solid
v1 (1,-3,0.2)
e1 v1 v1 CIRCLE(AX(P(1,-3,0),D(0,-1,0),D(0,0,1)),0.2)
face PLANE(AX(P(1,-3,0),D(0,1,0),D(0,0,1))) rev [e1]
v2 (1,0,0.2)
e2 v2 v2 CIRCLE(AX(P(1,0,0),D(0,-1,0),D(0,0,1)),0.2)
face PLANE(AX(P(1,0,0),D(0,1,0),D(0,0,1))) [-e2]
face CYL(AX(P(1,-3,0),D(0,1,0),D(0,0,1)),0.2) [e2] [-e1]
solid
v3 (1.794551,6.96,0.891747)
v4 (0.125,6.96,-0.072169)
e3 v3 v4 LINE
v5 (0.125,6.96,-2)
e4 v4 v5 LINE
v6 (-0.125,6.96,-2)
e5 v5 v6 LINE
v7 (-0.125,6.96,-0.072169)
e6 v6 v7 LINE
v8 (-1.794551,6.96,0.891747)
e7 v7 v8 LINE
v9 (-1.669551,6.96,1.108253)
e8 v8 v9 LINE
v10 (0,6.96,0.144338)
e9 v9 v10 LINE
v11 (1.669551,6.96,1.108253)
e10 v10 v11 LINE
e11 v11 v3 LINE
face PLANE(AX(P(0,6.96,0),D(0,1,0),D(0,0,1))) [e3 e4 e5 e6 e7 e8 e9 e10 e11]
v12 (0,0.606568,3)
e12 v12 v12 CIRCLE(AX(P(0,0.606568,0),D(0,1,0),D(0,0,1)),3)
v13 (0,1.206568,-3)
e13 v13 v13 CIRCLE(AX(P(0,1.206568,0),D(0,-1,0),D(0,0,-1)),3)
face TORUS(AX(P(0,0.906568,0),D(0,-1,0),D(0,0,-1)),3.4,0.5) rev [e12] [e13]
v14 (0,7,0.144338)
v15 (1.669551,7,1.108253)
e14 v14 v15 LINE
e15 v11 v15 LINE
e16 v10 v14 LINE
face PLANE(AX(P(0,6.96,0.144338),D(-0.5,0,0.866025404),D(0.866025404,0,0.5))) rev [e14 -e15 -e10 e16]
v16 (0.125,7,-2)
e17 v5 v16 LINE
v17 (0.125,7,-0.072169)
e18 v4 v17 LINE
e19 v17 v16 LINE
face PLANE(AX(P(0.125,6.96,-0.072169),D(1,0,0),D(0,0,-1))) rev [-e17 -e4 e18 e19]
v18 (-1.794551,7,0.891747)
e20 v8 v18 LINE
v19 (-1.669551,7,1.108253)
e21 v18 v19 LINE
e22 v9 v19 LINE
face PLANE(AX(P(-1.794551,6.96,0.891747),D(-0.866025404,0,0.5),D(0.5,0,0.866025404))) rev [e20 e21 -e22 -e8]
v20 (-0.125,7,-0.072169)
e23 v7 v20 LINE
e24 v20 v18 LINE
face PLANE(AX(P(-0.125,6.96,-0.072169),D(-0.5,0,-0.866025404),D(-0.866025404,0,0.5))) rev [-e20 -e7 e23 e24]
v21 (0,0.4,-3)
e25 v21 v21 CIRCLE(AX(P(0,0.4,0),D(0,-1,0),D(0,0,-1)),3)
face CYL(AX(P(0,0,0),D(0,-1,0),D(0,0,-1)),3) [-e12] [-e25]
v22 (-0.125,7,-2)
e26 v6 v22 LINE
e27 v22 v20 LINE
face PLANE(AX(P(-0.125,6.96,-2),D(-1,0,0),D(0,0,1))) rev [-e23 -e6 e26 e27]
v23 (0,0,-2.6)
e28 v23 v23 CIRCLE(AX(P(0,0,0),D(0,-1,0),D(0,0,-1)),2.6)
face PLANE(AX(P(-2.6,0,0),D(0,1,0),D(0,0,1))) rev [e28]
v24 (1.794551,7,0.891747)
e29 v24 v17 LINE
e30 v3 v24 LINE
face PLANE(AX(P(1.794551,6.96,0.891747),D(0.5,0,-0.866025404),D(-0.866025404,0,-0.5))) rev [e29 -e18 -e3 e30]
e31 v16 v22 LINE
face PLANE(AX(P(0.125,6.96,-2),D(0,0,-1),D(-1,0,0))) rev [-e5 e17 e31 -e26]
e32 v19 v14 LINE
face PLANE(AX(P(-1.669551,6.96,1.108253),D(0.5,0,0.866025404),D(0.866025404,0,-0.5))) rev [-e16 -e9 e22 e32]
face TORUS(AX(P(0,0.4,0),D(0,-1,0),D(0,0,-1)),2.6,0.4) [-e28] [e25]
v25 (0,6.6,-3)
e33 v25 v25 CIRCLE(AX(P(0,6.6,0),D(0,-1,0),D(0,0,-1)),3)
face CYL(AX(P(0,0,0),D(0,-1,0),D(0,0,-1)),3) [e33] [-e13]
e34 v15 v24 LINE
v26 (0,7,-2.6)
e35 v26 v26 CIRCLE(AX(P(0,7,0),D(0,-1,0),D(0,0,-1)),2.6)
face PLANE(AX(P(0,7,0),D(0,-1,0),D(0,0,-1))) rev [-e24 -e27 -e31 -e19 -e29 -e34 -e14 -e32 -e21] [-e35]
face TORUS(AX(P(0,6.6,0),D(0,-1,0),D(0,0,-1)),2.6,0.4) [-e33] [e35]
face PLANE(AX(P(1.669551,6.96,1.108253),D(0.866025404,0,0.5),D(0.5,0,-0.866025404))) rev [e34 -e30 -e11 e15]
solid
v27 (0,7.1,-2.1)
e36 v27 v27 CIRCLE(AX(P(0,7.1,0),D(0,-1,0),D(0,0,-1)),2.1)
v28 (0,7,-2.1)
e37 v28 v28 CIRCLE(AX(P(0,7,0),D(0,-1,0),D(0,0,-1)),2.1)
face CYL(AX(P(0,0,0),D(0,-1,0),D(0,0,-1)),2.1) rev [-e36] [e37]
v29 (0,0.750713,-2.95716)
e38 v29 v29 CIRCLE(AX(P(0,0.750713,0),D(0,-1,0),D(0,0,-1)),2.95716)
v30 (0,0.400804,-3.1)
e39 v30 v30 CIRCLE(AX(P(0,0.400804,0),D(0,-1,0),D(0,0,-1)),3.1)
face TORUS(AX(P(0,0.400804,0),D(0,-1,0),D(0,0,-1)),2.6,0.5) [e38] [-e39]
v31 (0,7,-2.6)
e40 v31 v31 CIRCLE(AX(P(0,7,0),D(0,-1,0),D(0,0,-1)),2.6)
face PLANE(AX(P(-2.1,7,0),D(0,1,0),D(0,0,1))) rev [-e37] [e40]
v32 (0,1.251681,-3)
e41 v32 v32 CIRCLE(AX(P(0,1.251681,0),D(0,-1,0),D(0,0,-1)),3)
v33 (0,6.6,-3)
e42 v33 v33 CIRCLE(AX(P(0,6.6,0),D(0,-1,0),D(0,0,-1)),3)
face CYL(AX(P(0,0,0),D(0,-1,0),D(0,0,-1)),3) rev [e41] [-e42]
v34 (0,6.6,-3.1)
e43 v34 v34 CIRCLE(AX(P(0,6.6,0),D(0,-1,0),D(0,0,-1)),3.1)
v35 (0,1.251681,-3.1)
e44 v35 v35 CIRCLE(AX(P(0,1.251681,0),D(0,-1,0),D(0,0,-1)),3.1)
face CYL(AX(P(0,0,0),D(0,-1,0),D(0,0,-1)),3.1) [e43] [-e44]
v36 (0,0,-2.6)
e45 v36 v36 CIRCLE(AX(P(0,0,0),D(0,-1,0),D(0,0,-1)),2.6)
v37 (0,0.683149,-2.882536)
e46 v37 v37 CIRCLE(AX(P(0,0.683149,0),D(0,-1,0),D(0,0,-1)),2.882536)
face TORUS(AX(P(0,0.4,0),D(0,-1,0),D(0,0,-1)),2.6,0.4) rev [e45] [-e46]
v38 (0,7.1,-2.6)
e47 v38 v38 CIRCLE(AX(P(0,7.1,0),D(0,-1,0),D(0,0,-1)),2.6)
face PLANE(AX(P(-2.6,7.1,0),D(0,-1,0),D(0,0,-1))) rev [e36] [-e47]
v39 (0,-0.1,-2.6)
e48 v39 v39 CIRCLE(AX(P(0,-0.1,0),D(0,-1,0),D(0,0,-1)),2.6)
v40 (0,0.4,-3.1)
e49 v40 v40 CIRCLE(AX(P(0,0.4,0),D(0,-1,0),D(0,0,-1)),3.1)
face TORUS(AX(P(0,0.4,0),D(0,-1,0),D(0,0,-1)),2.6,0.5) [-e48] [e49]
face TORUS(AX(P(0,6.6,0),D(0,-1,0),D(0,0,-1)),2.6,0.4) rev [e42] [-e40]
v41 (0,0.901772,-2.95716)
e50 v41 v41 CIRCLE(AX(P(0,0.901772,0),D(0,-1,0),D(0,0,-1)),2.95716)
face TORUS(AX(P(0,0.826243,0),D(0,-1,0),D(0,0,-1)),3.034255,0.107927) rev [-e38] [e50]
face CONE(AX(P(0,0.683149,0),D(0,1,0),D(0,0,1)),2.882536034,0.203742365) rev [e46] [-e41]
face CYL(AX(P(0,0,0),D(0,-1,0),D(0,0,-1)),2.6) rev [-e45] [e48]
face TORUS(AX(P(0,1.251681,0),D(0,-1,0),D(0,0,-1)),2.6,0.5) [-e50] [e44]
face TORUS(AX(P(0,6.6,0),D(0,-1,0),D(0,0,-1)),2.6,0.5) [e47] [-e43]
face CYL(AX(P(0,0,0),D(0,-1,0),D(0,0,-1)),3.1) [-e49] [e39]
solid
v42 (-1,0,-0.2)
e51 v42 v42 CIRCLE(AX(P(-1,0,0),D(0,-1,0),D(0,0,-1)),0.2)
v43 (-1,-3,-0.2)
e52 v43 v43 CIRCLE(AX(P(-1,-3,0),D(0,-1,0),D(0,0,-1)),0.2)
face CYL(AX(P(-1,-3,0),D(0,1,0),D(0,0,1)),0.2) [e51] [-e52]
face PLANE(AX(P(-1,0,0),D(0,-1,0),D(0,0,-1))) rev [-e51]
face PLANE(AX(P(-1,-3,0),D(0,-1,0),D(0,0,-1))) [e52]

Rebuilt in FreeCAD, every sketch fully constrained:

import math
import FreeCAD as App
import Part
import Sketcher

V = App.Vector
Q = App.Units.Quantity


def add_polygon(sketch, points):
    """Adds a closed chain of lines whose ends are joined by coincident constraints."""
    first, n = sketch.GeometryCount, len(points)
    for a, b in zip(points, points[1:] + points[:1]):
        sketch.addGeometry(Part.LineSegment(App.Vector(*a, 0), App.Vector(*b, 0)), False)
    for i in range(n):
        sketch.addConstraint(Sketcher.Constraint("Coincident", first + i, 2, first + (i + 1) % n, 1))

doc = App.newDocument("Part")
body = doc.addObject("PartDesign::Body", "Body")

# Sketch on XY plane
sketch1 = doc.addObject("Sketcher::SketchObject", "Sketch")
body.addObject(sketch1)
sketch1.AttachmentSupport = (doc.XY_Plane, [""])
sketch1.MapMode = "FlatFace"
sketch1.addGeometry(Part.LineSegment(V(-3, 6.6, 0), V(-3, 0.4, 0)), False)
sketch1.addGeometry(Part.ArcOfCircle(Part.Circle(V(-2.6, 0.4, 0), V(0, 0, 1), 0.4), math.radians(-180), math.radians(-90)), False)
sketch1.addGeometry(Part.LineSegment(V(-2.6, 0, 0), V(0, 0, 0)), False)
sketch1.addGeometry(Part.LineSegment(V(0, 0, 0), V(0, 7, 0)), False)
sketch1.addGeometry(Part.LineSegment(V(0, 7, 0), V(-2.6, 7, 0)), False)
sketch1.addGeometry(Part.ArcOfCircle(Part.Circle(V(-2.6, 6.6, 0), V(0, 0, 1), 0.4), math.radians(90), math.radians(180)), False)
sketch1.addConstraint(Sketcher.Constraint("Tangent", 0, 2, 1, 1))
sketch1.addConstraint(Sketcher.Constraint("Tangent", 1, 2, 2, 1))
sketch1.addConstraint(Sketcher.Constraint("Coincident", 2, 2, 3, 1))
sketch1.addConstraint(Sketcher.Constraint("Coincident", 3, 2, 4, 1))
sketch1.addConstraint(Sketcher.Constraint("Tangent", 4, 2, 5, 1))
sketch1.addConstraint(Sketcher.Constraint("Tangent", 5, 2, 0, 1))
sketch1.addConstraint(Sketcher.Constraint("Vertical", 0))
sketch1.addConstraint(Sketcher.Constraint("Horizontal", 2))
sketch1.addConstraint(Sketcher.Constraint("Vertical", 3))
sketch1.addConstraint(Sketcher.Constraint("Horizontal", 4))
sketch1.addConstraint(Sketcher.Constraint("Coincident", 2, 2, -1, 1))
sketch1.addConstraint(Sketcher.Constraint("Equal", 1, 5))
sketch1.addConstraint(Sketcher.Constraint("Radius", 1, 0.4))
sketch1.addConstraint(Sketcher.Constraint("DistanceY", 3, 1, 3, 2, 7.0))
sketch1.addConstraint(Sketcher.Constraint("DistanceX", 2, 1, 2, 2, 2.6))
revolution = doc.addObject("PartDesign::Revolution", "Revolution")
body.addObject(revolution)
revolution.Profile = sketch1
revolution.ReferenceAxis = (sketch1, ["V_Axis"])
revolution.Angle = 360

# Sketch on XY plane
sketch2 = doc.addObject("Sketcher::SketchObject", "Sketch001")
body.addObject(sketch2)
sketch2.AttachmentSupport = (doc.XY_Plane, [""])
sketch2.MapMode = "FlatFace"
sketch2.addGeometry(Part.Circle(V(-3.4, 0.9, 0), V(0, 0, 1), 0.5), False)
sketch2.addConstraint(Sketcher.Constraint("Diameter", 0, 1.0))
sketch2.addConstraint(Sketcher.Constraint("DistanceX", 0, 3, -1, 1, 3.4))
sketch2.addConstraint(Sketcher.Constraint("DistanceY", -1, 1, 0, 3, 0.906568))
groove = doc.addObject("PartDesign::Groove", "Groove")
body.addObject(groove)
groove.Profile = sketch2
groove.ReferenceAxis = (sketch2, ["V_Axis"])
groove.Angle = 360

# Sketch on XZ plane
sketch3 = doc.addObject("Sketcher::SketchObject", "Sketch002")
body.addObject(sketch3)
sketch3.AttachmentSupport = (doc.XZ_Plane, [""])
sketch3.MapMode = "FlatFace"
sketch3.AttachmentOffset = App.Placement(V(0, 0, -7), App.Rotation())
add_polygon(sketch3, [(-1.79, 0.89), (-1.67, 1.11), (0, 0.14), (1.67, 1.11), (1.79, 0.89), (0.12, -0.07), (0.12, -2), (-0.12, -2), (-0.12, -0.07)])  # lines 0-8
sketch3.addConstraint(Sketcher.Constraint("Vertical", 5))
sketch3.addConstraint(Sketcher.Constraint("Horizontal", 6))
sketch3.addConstraint(Sketcher.Constraint("Vertical", 7))
sketch3.addConstraint(Sketcher.Constraint("Symmetric", 0, 2, 2, 2, -2))
sketch3.addConstraint(Sketcher.Constraint("Symmetric", 4, 2, 7, 2, -2))
sketch3.addConstraint(Sketcher.Constraint("Symmetric", 3, 2, 8, 2, -2))
sketch3.addConstraint(Sketcher.Constraint("PointOnObject", 1, 2, -2))
sketch3.addConstraint(Sketcher.Constraint("Perpendicular", 0, 1))
sketch3.addConstraint(Sketcher.Constraint("Perpendicular", 3, 4))
sketch3.addConstraint(Sketcher.Constraint("Equal", 2, 4))
sketch3.addConstraint(Sketcher.Constraint("Angle", 0, Q("60 deg")))
sketch3.addConstraint(Sketcher.Constraint("DistanceY", 5, 2, -1, 1, 2.0))
sketch3.addConstraint(Sketcher.Constraint("DistanceX", 6, 2, 6, 1, 0.25))
sketch3.addConstraint(Sketcher.Constraint("DistanceY", 5, 2, 5, 1, 1.927831))
sketch3.addConstraint(Sketcher.Constraint("DistanceX", 0, 2, 2, 2, 3.339102))
pocket1 = doc.addObject("PartDesign::Pocket", "Pocket")
body.addObject(pocket1)
pocket1.Profile = sketch3
pocket1.Length = 0.04
pocket1.Reversed = True
body2 = doc.addObject("PartDesign::Body", "Body001")

# Sketch on XY plane
sketch4 = doc.addObject("Sketcher::SketchObject", "Sketch003")
body2.addObject(sketch4)
sketch4.AttachmentSupport = (doc.getObject("XY_Plane001"), [""])
sketch4.MapMode = "FlatFace"
sketch4.addGeometry(Part.LineSegment(V(-2.88, 0.68, 0), V(-3, 1.25, 0)), False)
sketch4.addGeometry(Part.LineSegment(V(-3, 1.25, 0), V(-3, 6.6, 0)), False)
sketch4.addGeometry(Part.ArcOfCircle(Part.Circle(V(-2.6, 6.6, 0), V(0, 0, 1), 0.4), math.radians(90), math.radians(180)), False)
sketch4.addGeometry(Part.LineSegment(V(-2.6, 7, 0), V(-2.1, 7, 0)), False)
sketch4.addGeometry(Part.LineSegment(V(-2.1, 7, 0), V(-2.1, 7.1, 0)), False)
sketch4.addGeometry(Part.LineSegment(V(-2.1, 7.1, 0), V(-2.6, 7.1, 0)), False)
sketch4.addGeometry(Part.ArcOfCircle(Part.Circle(V(-2.6, 6.6, 0), V(0, 0, 1), 0.5), math.radians(90), math.radians(180)), False)
sketch4.addGeometry(Part.LineSegment(V(-3.1, 6.6, 0), V(-3.1, 1.25, 0)), False)
sketch4.addGeometry(Part.ArcOfCircle(Part.Circle(V(-2.6, 1.25, 0), V(0, 0, 1), 0.5), math.radians(-180), math.radians(-136)), False)
sketch4.addGeometry(Part.ArcOfCircle(Part.Circle(V(-3.03, 0.83, 0), V(0, 0, 1), 0.11), math.radians(-44), math.radians(44)), False)
sketch4.addGeometry(Part.ArcOfCircle(Part.Circle(V(-2.6, 0.4, 0), V(0, 0, 1), 0.5), math.radians(136), math.radians(180)), False)
sketch4.addGeometry(Part.ArcOfCircle(Part.Circle(V(-2.6, 0.4, 0), V(0, 0, 1), 0.5), math.radians(180), math.radians(270)), False)
sketch4.addGeometry(Part.LineSegment(V(-2.6, -0.1, 0), V(-2.6, 0, 0)), False)
sketch4.addGeometry(Part.ArcOfCircle(Part.Circle(V(-2.6, 0.4, 0), V(0, 0, 1), 0.4), math.radians(135), math.radians(270)), False)
sketch4.addConstraint(Sketcher.Constraint("Coincident", 0, 2, 1, 1))
sketch4.addConstraint(Sketcher.Constraint("Tangent", 1, 2, 2, 2))
sketch4.addConstraint(Sketcher.Constraint("Tangent", 2, 1, 3, 1))
sketch4.addConstraint(Sketcher.Constraint("Coincident", 3, 2, 4, 1))
sketch4.addConstraint(Sketcher.Constraint("Coincident", 4, 2, 5, 1))
sketch4.addConstraint(Sketcher.Constraint("Tangent", 5, 2, 6, 1))
sketch4.addConstraint(Sketcher.Constraint("Tangent", 6, 2, 7, 1))
sketch4.addConstraint(Sketcher.Constraint("Tangent", 7, 2, 8, 1))
sketch4.addConstraint(Sketcher.Constraint("Tangent", 8, 2, 9, 2))
sketch4.addConstraint(Sketcher.Constraint("Tangent", 9, 1, 10, 1))
sketch4.addConstraint(Sketcher.Constraint("Coincident", 10, 2, 11, 1))
sketch4.addConstraint(Sketcher.Constraint("Coincident", 11, 2, 12, 1))
sketch4.addConstraint(Sketcher.Constraint("Coincident", 12, 2, 13, 2))
sketch4.addConstraint(Sketcher.Constraint("Coincident", 13, 1, 0, 1))
sketch4.addConstraint(Sketcher.Constraint("Vertical", 1))
sketch4.addConstraint(Sketcher.Constraint("Horizontal", 3))
sketch4.addConstraint(Sketcher.Constraint("Vertical", 4))
sketch4.addConstraint(Sketcher.Constraint("Horizontal", 5))
sketch4.addConstraint(Sketcher.Constraint("Vertical", 7))
sketch4.addConstraint(Sketcher.Constraint("Vertical", 12))
sketch4.addConstraint(Sketcher.Constraint("Coincident", 6, 3, 2, 3))
sketch4.addConstraint(Sketcher.Constraint("Coincident", 13, 3, 11, 3))
sketch4.addConstraint(Sketcher.Constraint("Equal", 6, 8))
sketch4.addConstraint(Sketcher.Constraint("Equal", 8, 11))
sketch4.addConstraint(Sketcher.Constraint("Equal", 2, 13))
sketch4.addConstraint(Sketcher.Constraint("PointOnObject", 12, 2, -1))
sketch4.addConstraint(Sketcher.Constraint("Horizontal", 8, 3, 0, 2))
sketch4.addConstraint(Sketcher.Constraint("Horizontal", 13, 3, 10, 2))
sketch4.addConstraint(Sketcher.Constraint("Vertical", 8, 3, 11, 3))
sketch4.addConstraint(Sketcher.Constraint("Vertical", 8, 2, 9, 1))
sketch4.addConstraint(Sketcher.Constraint("Vertical", 5, 2, 11, 2))
sketch4.addConstraint(Sketcher.Constraint("Radius", 2, 0.4))
sketch4.addConstraint(Sketcher.Constraint("Radius", 6, 0.5))
sketch4.addConstraint(Sketcher.Constraint("DistanceX", 3, 1, 3, 2, 0.5))
sketch4.addConstraint(Sketcher.Constraint("DistanceX", 0, 2, -1, 1, 3.0))
sketch4.addConstraint(Sketcher.Constraint("DistanceY", -1, 1, 2, 1, 7.0))
sketch4.addConstraint(Sketcher.Constraint("Radius", 9, 0.107927))
sketch4.addConstraint(Sketcher.Constraint("DistanceY", 1, 1, 1, 2, 5.348319))
sketch4.addConstraint(Sketcher.Constraint("DistanceY", -1, 1, 10, 3, 0.400802))
sketch4.addConstraint(Sketcher.Constraint("Distance", 0, 0.58054))
revolution2 = doc.addObject("PartDesign::Revolution", "Revolution001")
body2.addObject(revolution2)
revolution2.Profile = sketch4
revolution2.ReferenceAxis = (sketch4, ["V_Axis"])
revolution2.Angle = 360
body3 = doc.addObject("PartDesign::Body", "Body002")

# Sketch on XZ plane
sketch5 = doc.addObject("Sketcher::SketchObject", "Sketch004")
body3.addObject(sketch5)
sketch5.AttachmentSupport = (doc.getObject("XZ_Plane002"), [""])
sketch5.MapMode = "FlatFace"
sketch5.addGeometry(Part.Circle(V(-1, 0, 0), V(0, 0, 1), 0.2), False)
sketch5.addConstraint(Sketcher.Constraint("PointOnObject", 0, 3, -1))
sketch5.addConstraint(Sketcher.Constraint("Diameter", 0, 0.4))
sketch5.addConstraint(Sketcher.Constraint("DistanceX", 0, 3, -1, 1, 1.0))
pad1 = doc.addObject("PartDesign::Pad", "Pad")
body3.addObject(pad1)
pad1.Profile = sketch5
pad1.Length = 3
body4 = doc.addObject("PartDesign::Body", "Body003")

# Sketch on XZ plane
sketch6 = doc.addObject("Sketcher::SketchObject", "Sketch005")
body4.addObject(sketch6)
sketch6.AttachmentSupport = (doc.getObject("XZ_Plane003"), [""])
sketch6.MapMode = "FlatFace"
sketch6.addGeometry(Part.Circle(V(1, 0, 0), V(0, 0, 1), 0.2), False)
sketch6.addConstraint(Sketcher.Constraint("PointOnObject", 0, 3, -1))
sketch6.addConstraint(Sketcher.Constraint("Diameter", 0, 0.4))
sketch6.addConstraint(Sketcher.Constraint("DistanceX", -1, 1, 0, 3, 1.0))
pad2 = doc.addObject("PartDesign::Pad", "Pad001")
body4.addObject(pad2)
pad2.Profile = sketch6
pad2.Length = 3

doc.recompute()
